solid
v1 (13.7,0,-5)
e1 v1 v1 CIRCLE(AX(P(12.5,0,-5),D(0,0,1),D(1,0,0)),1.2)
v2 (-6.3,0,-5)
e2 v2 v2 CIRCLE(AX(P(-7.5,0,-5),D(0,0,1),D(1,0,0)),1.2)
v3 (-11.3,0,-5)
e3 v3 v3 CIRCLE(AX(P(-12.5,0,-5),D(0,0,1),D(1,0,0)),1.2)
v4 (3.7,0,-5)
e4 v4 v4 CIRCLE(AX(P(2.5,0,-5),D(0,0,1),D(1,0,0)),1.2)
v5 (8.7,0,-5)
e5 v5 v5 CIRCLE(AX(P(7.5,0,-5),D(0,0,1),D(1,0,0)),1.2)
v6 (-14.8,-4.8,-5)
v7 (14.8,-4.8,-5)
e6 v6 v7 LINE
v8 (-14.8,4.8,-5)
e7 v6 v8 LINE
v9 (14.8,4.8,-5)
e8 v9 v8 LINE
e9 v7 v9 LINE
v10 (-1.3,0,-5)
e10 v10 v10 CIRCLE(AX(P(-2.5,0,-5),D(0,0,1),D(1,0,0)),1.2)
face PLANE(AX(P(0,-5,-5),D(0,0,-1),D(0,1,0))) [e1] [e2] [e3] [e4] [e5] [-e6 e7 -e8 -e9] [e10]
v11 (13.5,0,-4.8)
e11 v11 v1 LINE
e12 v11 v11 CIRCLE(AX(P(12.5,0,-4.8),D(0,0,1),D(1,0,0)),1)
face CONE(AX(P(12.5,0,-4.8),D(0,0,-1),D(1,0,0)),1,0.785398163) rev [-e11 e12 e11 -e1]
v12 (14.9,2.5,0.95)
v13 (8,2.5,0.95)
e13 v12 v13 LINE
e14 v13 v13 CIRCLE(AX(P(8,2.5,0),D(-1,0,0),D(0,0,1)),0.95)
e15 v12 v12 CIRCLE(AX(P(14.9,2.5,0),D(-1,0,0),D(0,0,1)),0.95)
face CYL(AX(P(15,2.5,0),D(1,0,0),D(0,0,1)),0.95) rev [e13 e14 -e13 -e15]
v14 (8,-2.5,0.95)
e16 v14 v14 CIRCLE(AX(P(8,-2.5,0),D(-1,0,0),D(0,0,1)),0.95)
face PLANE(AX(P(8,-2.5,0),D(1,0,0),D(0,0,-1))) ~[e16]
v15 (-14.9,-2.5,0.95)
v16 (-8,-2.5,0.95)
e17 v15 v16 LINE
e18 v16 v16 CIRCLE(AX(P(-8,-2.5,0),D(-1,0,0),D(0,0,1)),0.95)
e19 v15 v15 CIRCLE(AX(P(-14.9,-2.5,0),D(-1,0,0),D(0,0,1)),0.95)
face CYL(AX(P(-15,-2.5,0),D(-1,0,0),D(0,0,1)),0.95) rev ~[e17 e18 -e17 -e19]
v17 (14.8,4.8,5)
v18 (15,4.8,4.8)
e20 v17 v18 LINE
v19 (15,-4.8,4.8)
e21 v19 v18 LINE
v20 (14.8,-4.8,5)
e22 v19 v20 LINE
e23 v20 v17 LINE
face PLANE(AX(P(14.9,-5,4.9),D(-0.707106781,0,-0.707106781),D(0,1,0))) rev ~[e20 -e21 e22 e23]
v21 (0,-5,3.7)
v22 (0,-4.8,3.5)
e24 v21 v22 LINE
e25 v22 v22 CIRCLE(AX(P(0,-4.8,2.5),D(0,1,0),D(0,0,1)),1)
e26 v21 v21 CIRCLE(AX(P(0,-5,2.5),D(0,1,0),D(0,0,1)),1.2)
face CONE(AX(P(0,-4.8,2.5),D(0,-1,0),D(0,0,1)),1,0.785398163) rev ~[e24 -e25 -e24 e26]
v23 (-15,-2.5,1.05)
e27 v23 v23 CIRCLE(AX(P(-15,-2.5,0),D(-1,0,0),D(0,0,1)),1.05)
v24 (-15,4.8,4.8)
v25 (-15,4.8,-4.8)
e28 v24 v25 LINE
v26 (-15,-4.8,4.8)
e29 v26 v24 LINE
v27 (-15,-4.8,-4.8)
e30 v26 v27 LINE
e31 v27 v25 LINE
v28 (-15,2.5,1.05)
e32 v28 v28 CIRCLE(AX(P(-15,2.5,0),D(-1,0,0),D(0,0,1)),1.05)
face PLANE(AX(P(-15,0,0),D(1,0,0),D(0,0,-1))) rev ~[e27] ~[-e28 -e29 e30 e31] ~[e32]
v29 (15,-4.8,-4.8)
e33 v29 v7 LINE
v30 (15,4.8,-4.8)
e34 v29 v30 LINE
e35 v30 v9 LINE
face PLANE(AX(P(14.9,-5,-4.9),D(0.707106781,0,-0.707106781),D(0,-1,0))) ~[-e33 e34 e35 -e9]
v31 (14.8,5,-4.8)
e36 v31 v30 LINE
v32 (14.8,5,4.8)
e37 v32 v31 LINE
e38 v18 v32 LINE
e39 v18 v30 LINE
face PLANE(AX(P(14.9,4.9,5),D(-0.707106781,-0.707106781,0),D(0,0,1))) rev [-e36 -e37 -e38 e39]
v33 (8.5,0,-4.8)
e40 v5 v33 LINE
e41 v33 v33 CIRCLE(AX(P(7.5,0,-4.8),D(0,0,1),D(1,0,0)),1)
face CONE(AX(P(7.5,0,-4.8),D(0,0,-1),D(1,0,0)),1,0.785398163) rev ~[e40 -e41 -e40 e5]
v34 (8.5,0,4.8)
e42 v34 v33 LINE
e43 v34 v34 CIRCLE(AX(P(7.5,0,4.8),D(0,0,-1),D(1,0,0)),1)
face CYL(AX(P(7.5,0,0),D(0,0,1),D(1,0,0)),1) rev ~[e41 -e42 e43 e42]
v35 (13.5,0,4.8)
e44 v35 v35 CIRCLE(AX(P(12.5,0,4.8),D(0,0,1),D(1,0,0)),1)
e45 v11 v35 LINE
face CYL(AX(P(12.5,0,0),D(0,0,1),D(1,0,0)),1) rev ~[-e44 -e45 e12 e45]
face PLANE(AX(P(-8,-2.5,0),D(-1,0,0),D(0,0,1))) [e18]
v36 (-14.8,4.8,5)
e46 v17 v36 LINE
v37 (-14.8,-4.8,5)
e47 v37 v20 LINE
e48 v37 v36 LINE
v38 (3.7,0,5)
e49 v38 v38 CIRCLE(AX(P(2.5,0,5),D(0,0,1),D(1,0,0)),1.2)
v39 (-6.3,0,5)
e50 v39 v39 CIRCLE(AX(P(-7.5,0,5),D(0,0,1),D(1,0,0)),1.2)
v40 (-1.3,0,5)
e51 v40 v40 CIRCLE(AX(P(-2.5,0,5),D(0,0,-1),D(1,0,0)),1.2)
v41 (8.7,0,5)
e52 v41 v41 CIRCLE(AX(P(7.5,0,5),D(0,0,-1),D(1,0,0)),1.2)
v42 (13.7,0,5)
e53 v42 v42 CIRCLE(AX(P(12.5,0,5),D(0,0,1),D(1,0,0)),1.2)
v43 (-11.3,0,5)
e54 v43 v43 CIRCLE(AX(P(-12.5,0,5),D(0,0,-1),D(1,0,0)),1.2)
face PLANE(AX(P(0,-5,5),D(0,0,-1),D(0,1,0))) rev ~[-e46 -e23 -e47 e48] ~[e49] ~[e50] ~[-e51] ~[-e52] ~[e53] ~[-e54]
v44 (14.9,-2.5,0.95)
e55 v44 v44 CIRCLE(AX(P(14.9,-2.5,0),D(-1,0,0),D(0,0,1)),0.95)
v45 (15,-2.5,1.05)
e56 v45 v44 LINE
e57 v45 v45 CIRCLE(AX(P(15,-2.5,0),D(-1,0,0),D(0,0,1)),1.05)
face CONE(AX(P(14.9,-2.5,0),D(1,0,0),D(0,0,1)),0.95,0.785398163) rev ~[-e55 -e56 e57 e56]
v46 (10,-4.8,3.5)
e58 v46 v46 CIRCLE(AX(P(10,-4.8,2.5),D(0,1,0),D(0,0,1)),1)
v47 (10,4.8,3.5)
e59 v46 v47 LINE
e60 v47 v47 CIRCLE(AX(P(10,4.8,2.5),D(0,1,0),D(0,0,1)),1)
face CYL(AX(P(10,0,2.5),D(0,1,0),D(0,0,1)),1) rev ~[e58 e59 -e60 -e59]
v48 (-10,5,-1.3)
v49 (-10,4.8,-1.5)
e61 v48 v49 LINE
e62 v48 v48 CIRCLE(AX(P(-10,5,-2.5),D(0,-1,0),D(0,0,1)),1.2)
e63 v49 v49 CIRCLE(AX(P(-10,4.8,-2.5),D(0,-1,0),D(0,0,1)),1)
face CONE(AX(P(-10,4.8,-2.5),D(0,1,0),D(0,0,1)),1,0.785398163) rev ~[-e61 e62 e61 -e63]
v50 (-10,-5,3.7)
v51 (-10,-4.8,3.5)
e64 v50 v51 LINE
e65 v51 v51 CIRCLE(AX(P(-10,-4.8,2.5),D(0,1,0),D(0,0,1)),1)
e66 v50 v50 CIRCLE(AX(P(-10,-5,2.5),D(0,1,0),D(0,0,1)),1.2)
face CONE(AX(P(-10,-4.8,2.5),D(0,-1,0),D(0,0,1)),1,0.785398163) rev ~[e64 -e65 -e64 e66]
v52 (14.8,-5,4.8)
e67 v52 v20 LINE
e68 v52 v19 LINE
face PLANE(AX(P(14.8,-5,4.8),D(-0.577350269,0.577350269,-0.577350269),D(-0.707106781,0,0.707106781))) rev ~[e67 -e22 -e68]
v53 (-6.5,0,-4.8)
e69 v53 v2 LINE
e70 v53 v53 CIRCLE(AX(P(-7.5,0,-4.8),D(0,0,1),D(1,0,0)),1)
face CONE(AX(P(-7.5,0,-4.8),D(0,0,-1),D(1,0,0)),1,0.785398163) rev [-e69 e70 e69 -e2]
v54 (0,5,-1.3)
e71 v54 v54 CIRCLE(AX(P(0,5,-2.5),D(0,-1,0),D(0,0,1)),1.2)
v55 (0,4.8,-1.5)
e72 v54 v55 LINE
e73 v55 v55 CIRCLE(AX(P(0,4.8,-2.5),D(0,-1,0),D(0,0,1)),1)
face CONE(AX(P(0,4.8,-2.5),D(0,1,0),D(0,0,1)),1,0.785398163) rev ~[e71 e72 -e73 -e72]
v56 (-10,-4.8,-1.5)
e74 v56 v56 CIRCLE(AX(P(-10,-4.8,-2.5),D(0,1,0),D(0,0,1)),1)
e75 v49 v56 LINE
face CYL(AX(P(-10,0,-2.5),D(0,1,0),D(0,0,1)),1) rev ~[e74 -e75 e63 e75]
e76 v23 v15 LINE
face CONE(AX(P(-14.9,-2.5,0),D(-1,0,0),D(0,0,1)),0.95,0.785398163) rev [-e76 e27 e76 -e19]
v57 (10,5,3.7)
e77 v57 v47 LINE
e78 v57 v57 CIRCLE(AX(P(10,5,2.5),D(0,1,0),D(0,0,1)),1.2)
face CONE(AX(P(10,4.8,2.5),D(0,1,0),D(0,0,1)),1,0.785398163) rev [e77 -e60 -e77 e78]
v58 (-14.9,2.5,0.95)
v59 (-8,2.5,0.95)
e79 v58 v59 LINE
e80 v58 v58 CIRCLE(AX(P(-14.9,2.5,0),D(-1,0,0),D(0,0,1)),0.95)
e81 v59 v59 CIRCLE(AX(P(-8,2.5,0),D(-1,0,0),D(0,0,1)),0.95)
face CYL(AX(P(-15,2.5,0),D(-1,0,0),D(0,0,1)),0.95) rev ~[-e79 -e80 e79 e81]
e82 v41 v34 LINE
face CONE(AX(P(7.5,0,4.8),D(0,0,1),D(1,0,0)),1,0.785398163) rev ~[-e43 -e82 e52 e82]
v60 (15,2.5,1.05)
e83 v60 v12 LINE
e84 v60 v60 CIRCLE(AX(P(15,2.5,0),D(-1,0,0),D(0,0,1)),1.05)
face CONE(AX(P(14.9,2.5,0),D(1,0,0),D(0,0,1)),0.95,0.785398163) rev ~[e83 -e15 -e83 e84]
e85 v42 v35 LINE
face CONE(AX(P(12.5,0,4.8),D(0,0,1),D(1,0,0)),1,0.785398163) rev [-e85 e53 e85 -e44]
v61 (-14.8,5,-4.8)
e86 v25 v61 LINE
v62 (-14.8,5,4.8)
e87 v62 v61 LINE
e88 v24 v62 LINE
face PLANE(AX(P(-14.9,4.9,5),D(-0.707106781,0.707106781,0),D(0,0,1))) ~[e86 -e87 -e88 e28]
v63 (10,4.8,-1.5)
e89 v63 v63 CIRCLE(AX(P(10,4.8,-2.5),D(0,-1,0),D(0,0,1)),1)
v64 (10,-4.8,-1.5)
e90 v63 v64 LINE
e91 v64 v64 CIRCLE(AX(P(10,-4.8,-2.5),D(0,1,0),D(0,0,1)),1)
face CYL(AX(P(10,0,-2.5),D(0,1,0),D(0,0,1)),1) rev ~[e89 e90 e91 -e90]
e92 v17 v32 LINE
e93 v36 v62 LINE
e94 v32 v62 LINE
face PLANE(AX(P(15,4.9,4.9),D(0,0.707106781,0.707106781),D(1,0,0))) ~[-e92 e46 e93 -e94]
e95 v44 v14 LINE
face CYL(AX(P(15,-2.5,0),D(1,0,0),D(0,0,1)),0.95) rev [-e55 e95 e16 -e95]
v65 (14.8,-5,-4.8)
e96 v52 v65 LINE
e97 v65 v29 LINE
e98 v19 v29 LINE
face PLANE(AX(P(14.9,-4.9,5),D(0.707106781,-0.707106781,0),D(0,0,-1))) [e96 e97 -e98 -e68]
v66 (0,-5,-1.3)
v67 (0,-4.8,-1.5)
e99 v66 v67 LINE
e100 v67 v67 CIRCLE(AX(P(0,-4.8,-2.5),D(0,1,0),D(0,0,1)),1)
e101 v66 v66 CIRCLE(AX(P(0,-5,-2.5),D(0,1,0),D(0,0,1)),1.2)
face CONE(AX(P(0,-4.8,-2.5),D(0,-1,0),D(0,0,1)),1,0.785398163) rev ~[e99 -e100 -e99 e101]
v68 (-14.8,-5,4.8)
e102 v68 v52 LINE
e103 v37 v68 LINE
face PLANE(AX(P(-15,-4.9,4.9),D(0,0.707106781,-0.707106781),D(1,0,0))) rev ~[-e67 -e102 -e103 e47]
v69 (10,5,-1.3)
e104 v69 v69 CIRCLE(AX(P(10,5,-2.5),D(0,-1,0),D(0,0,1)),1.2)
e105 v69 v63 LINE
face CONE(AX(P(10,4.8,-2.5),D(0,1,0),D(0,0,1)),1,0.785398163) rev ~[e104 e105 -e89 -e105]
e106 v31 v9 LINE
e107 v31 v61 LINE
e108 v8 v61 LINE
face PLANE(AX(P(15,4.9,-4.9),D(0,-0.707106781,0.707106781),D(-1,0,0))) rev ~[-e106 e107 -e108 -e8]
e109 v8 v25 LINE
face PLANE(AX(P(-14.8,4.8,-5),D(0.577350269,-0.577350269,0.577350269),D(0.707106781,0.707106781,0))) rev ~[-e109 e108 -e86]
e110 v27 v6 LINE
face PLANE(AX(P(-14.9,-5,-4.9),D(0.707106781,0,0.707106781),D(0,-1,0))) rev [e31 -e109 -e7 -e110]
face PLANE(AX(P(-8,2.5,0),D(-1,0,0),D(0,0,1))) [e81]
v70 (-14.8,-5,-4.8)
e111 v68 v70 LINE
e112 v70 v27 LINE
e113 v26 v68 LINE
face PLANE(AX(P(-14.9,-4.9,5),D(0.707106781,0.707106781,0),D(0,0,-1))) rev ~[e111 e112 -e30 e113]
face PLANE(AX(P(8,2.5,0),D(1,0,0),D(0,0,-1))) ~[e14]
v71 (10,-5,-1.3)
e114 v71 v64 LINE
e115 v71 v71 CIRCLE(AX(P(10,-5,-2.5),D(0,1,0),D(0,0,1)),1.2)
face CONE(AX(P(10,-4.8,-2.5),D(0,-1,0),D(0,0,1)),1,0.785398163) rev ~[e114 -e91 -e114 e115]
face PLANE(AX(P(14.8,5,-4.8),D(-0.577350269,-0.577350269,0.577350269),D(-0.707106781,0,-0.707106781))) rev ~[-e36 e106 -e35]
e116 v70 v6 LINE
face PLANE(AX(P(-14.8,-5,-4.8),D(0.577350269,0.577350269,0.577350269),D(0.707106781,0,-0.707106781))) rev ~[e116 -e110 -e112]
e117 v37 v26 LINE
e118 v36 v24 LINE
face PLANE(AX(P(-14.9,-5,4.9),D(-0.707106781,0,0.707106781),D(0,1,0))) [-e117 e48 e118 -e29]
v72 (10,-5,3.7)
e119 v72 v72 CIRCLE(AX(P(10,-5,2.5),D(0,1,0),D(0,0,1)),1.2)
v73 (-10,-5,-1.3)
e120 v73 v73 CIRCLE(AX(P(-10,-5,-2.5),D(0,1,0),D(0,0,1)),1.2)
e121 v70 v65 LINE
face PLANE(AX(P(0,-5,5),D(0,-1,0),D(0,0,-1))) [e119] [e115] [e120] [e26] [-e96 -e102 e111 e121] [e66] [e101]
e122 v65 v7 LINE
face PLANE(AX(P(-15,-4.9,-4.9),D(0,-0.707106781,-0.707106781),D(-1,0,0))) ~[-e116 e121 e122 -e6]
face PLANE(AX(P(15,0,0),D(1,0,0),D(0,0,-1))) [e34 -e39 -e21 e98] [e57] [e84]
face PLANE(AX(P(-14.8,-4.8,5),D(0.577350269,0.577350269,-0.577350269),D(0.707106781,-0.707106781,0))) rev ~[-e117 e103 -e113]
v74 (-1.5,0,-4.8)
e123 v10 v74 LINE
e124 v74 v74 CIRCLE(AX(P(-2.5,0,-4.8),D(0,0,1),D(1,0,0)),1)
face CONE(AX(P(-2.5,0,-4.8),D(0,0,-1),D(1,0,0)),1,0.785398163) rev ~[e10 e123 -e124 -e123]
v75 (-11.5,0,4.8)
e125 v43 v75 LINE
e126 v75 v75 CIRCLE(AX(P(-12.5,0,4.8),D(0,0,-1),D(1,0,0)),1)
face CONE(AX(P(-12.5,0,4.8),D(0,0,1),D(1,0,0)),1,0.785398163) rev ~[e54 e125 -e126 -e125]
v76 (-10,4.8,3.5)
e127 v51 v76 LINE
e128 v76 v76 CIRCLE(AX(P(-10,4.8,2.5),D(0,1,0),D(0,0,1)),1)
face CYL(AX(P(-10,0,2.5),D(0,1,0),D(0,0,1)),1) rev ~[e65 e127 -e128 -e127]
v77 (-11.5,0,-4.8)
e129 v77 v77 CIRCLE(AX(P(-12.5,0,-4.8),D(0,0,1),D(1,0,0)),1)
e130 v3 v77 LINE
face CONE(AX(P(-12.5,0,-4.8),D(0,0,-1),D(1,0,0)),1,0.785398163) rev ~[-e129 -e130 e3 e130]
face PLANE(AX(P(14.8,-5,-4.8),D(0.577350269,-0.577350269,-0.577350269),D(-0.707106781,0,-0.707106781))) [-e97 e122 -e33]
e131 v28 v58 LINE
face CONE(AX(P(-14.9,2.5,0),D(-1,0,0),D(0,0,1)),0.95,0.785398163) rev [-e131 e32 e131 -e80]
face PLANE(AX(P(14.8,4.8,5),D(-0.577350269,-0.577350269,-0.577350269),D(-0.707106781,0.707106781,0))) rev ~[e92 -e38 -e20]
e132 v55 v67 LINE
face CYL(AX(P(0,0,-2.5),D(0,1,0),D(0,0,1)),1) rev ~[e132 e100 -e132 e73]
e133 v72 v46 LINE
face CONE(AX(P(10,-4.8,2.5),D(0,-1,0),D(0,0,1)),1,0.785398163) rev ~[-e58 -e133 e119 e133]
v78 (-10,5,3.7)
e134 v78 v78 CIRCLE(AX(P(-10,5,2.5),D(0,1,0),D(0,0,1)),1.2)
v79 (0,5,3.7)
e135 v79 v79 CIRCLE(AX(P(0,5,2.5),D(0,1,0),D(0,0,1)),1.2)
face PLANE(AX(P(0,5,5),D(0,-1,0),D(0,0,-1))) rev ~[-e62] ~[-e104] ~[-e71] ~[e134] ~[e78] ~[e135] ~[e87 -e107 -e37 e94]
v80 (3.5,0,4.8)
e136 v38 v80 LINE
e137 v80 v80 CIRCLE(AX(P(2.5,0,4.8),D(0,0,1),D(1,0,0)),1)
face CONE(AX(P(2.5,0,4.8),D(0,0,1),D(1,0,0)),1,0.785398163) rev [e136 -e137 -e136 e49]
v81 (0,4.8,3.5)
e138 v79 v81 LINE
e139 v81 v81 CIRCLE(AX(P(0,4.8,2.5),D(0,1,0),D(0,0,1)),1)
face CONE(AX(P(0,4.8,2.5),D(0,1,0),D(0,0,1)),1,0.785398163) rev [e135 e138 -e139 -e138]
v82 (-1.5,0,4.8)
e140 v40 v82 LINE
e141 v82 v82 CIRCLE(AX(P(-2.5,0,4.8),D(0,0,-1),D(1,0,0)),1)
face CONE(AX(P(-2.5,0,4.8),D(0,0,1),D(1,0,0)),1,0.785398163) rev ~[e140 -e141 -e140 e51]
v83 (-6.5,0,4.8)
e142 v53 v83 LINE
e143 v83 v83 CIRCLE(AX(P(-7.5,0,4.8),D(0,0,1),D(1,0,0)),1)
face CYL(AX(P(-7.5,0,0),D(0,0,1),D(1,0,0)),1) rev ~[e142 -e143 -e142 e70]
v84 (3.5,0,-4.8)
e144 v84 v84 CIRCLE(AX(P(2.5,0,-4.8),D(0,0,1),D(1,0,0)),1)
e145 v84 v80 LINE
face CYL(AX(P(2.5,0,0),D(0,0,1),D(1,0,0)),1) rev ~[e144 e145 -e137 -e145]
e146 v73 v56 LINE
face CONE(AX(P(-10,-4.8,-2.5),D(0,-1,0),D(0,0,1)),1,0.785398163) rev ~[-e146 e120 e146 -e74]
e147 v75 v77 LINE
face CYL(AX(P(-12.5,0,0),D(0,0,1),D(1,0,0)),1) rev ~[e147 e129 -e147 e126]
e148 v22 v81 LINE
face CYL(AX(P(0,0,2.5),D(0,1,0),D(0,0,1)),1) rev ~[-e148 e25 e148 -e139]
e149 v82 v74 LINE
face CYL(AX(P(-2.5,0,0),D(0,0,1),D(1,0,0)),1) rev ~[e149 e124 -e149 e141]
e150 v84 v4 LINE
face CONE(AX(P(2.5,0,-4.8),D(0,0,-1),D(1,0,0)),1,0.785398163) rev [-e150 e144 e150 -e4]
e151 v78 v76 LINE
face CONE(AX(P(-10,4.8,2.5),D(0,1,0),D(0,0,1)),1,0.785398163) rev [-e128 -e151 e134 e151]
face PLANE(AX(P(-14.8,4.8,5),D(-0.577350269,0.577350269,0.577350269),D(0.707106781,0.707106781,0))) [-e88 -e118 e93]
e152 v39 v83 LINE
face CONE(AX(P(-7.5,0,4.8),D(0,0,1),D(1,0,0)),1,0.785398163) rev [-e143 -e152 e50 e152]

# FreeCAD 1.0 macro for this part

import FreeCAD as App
import Part
import Sketcher
from FreeCAD import Vector


def edges_at(feature, points):
    """Names of the edges that pass closest to the given points."""
    edges = feature.Shape.Edges
    near = lambda p: min(range(len(edges)), key=lambda i: edges[i].distToShape(Part.Vertex(*p))[0])
    return sorted({f"Edge{near(p) + 1}" for p in points})

doc = App.newDocument("Part")
params = doc.addObject("Spreadsheet::Sheet", "Params")
for row, (alias, value) in enumerate([
    ("sketch1_width", "10 mm"),
    ("pad1_length", "30 mm"),
    ("sketch2_diameter", "2 mm"),
    ("pocket1_length", "12 mm"),
    ("sketch3_diameter", "2 mm"),
    ("pocket2_length", "12 mm"),
    ("chamfer_size", "0.2 mm"),
    ("linearpattern_pitch", "10 mm"),
    ("chamfer2_size", "0.2 mm"),
    ("sketch4_diameter", "1.9 mm"),
    ("pocket3_length", "7 mm"),
    ("chamfer3_size", "0.2 mm"),
    ("chamfer4_size", "0.1 mm"),
], start=1):
    params.set(f"A{row}", alias)
    params.set(f"B{row}", "=" + value)
    params.setAlias(f"B{row}", alias)

body = doc.addObject("PartDesign::Body", "Body")

# Sketch on YZ plane
sketch1 = body.newObject("Sketcher::SketchObject", "Sketch")
sketch1.AttachmentSupport = (doc.getObject("YZ_Plane"), [""])
sketch1.MapMode = "FlatFace"
sketch1.addGeometry(Part.LineSegment(Vector(5, 5, 0), Vector(-5, 5, 0)), False)
sketch1.addGeometry(Part.LineSegment(Vector(-5, 5, 0), Vector(-5, -5, 0)), False)
sketch1.addGeometry(Part.LineSegment(Vector(-5, -5, 0), Vector(5, -5, 0)), False)
sketch1.addGeometry(Part.LineSegment(Vector(5, -5, 0), Vector(5, 5, 0)), False)
sketch1.addConstraint(Sketcher.Constraint("Coincident", 0, 2, 1, 1))
sketch1.addConstraint(Sketcher.Constraint("Coincident", 1, 2, 2, 1))
sketch1.addConstraint(Sketcher.Constraint("Coincident", 2, 2, 3, 1))
sketch1.addConstraint(Sketcher.Constraint("Coincident", 3, 2, 0, 1))
sketch1.addConstraint(Sketcher.Constraint("Horizontal", 0))
sketch1.addConstraint(Sketcher.Constraint("Vertical", 1))
sketch1.addConstraint(Sketcher.Constraint("Horizontal", 2))
sketch1.addConstraint(Sketcher.Constraint("Vertical", 3))
sketch1.addConstraint(Sketcher.Constraint("Symmetric", 0, 2, 2, 2, -1, 1))
sketch1.addConstraint(Sketcher.Constraint("Equal", 2, 1))
sketch1.addConstraint(Sketcher.Constraint("DistanceX", 0, 2, 0, 1, 10.0))
sketch1.setExpression("Constraints[10]", "Params.sketch1_width")
pad1 = body.newObject("PartDesign::Pad", "Pad")
pad1.Profile = sketch1
pad1.setExpression("Length", "Params.pad1_length")
pad1.Midplane = True

# Sketch on XY plane
sketch2 = body.newObject("Sketcher::SketchObject", "Sketch001")
sketch2.AttachmentSupport = (doc.getObject("XY_Plane"), [""])
sketch2.MapMode = "FlatFace"
sketch2.addGeometry(Part.Circle(Vector(-12.5, 0, 0), Vector(0, 0, 1), 1), False)
sketch2.addGeometry(Part.Circle(Vector(-7.5, 0, 0), Vector(0, 0, 1), 1), False)
sketch2.addConstraint(Sketcher.Constraint("Equal", 0, 1))
sketch2.addConstraint(Sketcher.Constraint("PointOnObject", 0, 3, -1))
sketch2.addConstraint(Sketcher.Constraint("PointOnObject", 1, 3, -1))
sketch2.addConstraint(Sketcher.Constraint("Diameter", 0, 2.0))
sketch2.addConstraint(Sketcher.Constraint("DistanceX", 0, 3, 1, 3, 5.0))
sketch2.addConstraint(Sketcher.Constraint("DistanceX", 0, 3, -1, 1, 12.5))
sketch2.setExpression("Constraints[3]", "Params.sketch2_diameter")
pocket1 = body.newObject("PartDesign::Pocket", "Pocket")
pocket1.Profile = sketch2
pocket1.setExpression("Length", "Params.pocket1_length")
pocket1.Midplane = True

# Sketch on XZ plane
sketch3 = body.newObject("Sketcher::SketchObject", "Sketch002")
sketch3.AttachmentSupport = (doc.getObject("XZ_Plane"), [""])
sketch3.MapMode = "FlatFace"
sketch3.addGeometry(Part.Circle(Vector(-10, -2.5, 0), Vector(0, 0, 1), 1), False)
sketch3.addGeometry(Part.Circle(Vector(-10, 2.5, 0), Vector(0, 0, 1), 1), False)
sketch3.addConstraint(Sketcher.Constraint("Equal", 0, 1))
sketch3.addConstraint(Sketcher.Constraint("Symmetric", 0, 3, 1, 3, -1))
sketch3.addConstraint(Sketcher.Constraint("Diameter", 0, 2.0))
sketch3.addConstraint(Sketcher.Constraint("DistanceX", 0, 3, -1, 1, 10.0))
sketch3.addConstraint(Sketcher.Constraint("DistanceY", 0, 3, 1, 3, 5.0))
sketch3.setExpression("Constraints[2]", "Params.sketch3_diameter")
pocket2 = body.newObject("PartDesign::Pocket", "Pocket001")
pocket2.Profile = sketch3
pocket2.setExpression("Length", "Params.pocket2_length")
pocket2.Midplane = True
doc.recompute()

chamfer = body.newObject("PartDesign::Chamfer", "Chamfer")
chamfer.Base = (pocket2, edges_at(pocket2, [
    (-13.5, 0, -5),
    (-13.5, 0, 5),
    (-8.5, 0, -5),
    (-8.5, 0, 5),
    (-10, -5, -3.5),
    (-10, 5, -3.5),
    (-10, -5, 1.5),
    (-10, 5, 1.5),
]))
chamfer.setExpression("Size", "Params.chamfer_size")
doc.recompute()

linearpattern = body.newObject("PartDesign::LinearPattern", "LinearPattern")
linearpattern.Originals = [pocket1, pocket2]
linearpattern.Direction = (doc.getObject("X_Axis"), [""])
linearpattern.Mode = "offset"
linearpattern.setExpression("Offset", "Params.linearpattern_pitch")
linearpattern.Occurrences = 3
body.Tip = linearpattern
doc.recompute()

chamfer2 = body.newObject("PartDesign::Chamfer", "Chamfer001")
chamfer2.Base = (linearpattern, edges_at(linearpattern, [
    (-3.5, 0, -5),
    (-3.5, 0, 5),
    (1.5, 0, -5),
    (1.5, 0, 5),
    (0, -5, -3.5),
    (0, 5, -3.5),
    (0, -5, 1.5),
    (0, 5, 1.5),
    (6.5, 0, -5),
    (6.5, 0, 5),
    (11.5, 0, -5),
    (11.5, 0, 5),
    (10, -5, -3.5),
    (10, 5, -3.5),
    (10, -5, 1.5),
    (10, 5, 1.5),
]))
chamfer2.setExpression("Size", "Params.chamfer2_size")

# Sketch on YZ plane
sketch4 = body.newObject("Sketcher::SketchObject", "Sketch003")
sketch4.AttachmentSupport = (doc.getObject("YZ_Plane"), [""])
sketch4.MapMode = "FlatFace"
sketch4.AttachmentOffset = App.Placement(Vector(0, 0, -15), App.Rotation())
sketch4.addGeometry(Part.Circle(Vector(2.5, 0, 0), Vector(0, 0, 1), 0.9), False)
sketch4.addGeometry(Part.Circle(Vector(-2.5, 0, 0), Vector(0, 0, 1), 0.9), False)
sketch4.addConstraint(Sketcher.Constraint("Equal", 0, 1))
sketch4.addConstraint(Sketcher.Constraint("Symmetric", 0, 3, 1, 3, -1, 1))
sketch4.addConstraint(Sketcher.Constraint("PointOnObject", 0, 3, -1))
sketch4.addConstraint(Sketcher.Constraint("Diameter", 0, 1.9))
sketch4.addConstraint(Sketcher.Constraint("DistanceX", 1, 3, 0, 3, 5.0))
sketch4.setExpression("Constraints[3]", "Params.sketch4_diameter")
pocket3 = body.newObject("PartDesign::Pocket", "Pocket002")
pocket3.Profile = sketch4
pocket3.setExpression("Length", "Params.pocket3_length")
pocket3.Reversed = True
doc.recompute()

mirrored = body.newObject("PartDesign::Mirrored", "Mirrored")
mirrored.Originals = [pocket3]
mirrored.MirrorPlane = (doc.getObject("YZ_Plane"), [""])
body.Tip = mirrored
doc.recompute()

chamfer3 = body.newObject("PartDesign::Chamfer", "Chamfer002")
chamfer3.Base = (mirrored, edges_at(mirrored, [
    (15, 0, -5),
    (15, 5, 0),
    (15, 0, 5),
    (-15, 5, 0),
    (-15, 0, -5),
    (-15, -5, 0),
    (-15, 0, 5),
    (15, -5, 0),
    (0, 5, 5),
    (0, 5, -5),
    (0, -5, -5),
    (0, -5, 5),
]))
chamfer3.setExpression("Size", "Params.chamfer3_size")
doc.recompute()

chamfer4 = body.newObject("PartDesign::Chamfer", "Chamfer003")
chamfer4.Base = (chamfer3, edges_at(chamfer3, [
    (-15, 2.5, -0.95),
    (-15, -2.5, -0.95),
    (15, 2.5, -0.95),
    (15, -2.5, -0.95),
]))
chamfer4.setExpression("Size", "Params.chamfer4_size")

doc.recompute()
